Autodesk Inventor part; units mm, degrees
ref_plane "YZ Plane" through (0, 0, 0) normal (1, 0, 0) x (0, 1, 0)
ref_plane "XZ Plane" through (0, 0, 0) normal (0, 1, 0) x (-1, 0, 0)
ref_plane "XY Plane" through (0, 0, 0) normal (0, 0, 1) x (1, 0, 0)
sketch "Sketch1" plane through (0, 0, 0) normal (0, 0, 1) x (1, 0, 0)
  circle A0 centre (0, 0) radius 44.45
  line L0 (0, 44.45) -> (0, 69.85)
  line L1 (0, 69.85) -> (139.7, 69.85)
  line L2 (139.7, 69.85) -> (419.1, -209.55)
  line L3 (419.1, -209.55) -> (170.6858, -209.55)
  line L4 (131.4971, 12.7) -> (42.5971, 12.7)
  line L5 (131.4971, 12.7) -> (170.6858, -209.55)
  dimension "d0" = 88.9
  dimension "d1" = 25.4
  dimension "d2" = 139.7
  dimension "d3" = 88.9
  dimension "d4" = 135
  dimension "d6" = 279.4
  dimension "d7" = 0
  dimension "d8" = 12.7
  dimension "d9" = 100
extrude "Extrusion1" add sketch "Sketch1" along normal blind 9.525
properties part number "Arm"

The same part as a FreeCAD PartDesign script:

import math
import FreeCAD as App
import Part
import Sketcher
Q = App.Units.Quantity

doc = App.newDocument("Part")
params = doc.addObject("Spreadsheet::Sheet", "Params")
for row, (alias, value) in enumerate([
    ("sketch1_height", "1 in"),
    ("sketch1_radius", "1.75 in"),
    ("sketch1_width", "3.5 in"),
    ("sketch1_width2", "5.5 in"),
    ("pad1_length", "0.375 in"),
], start=1):
    params.set(f"A{row}", alias)
    params.set(f"B{row}", "=" + value)
    params.setAlias(f"B{row}", alias)

body = doc.addObject("PartDesign::Body", "Body")

# Sketch on XY plane
sketch1 = body.newObject("Sketcher::SketchObject", "Sketch")
sketch1.AttachmentSupport = (doc.getObject("XY_Plane"), [""])
sketch1.MapMode = "FlatFace"
sketch1.addGeometry(Part.ArcOfCircle(Part.Circle(App.Vector(0, 0, 0), App.Vector(0, 0, 1), 44), math.radians(90), math.radians(377)), False)
sketch1.addGeometry(Part.LineSegment(App.Vector(43, 13, 0), App.Vector(131, 13, 0)), False)
sketch1.addGeometry(Part.LineSegment(App.Vector(131, 13, 0), App.Vector(171, -210, 0)), False)
sketch1.addGeometry(Part.LineSegment(App.Vector(171, -210, 0), App.Vector(419, -210, 0)), False)
sketch1.addGeometry(Part.LineSegment(App.Vector(419, -210, 0), App.Vector(140, 70, 0)), False)
sketch1.addGeometry(Part.LineSegment(App.Vector(140, 70, 0), App.Vector(0, 70, 0)), False)
sketch1.addGeometry(Part.LineSegment(App.Vector(0, 70, 0), App.Vector(0, 44, 0)), False)
sketch1.addConstraint(Sketcher.Constraint("Coincident", 0, 2, 1, 1))
sketch1.addConstraint(Sketcher.Constraint("Coincident", 1, 2, 2, 1))
sketch1.addConstraint(Sketcher.Constraint("Coincident", 2, 2, 3, 1))
sketch1.addConstraint(Sketcher.Constraint("Coincident", 3, 2, 4, 1))
sketch1.addConstraint(Sketcher.Constraint("Coincident", 4, 2, 5, 1))
sketch1.addConstraint(Sketcher.Constraint("Coincident", 5, 2, 6, 1))
sketch1.addConstraint(Sketcher.Constraint("Coincident", 6, 2, 0, 1))
sketch1.addConstraint(Sketcher.Constraint("Horizontal", 1))
sketch1.addConstraint(Sketcher.Constraint("Horizontal", 3))
sketch1.addConstraint(Sketcher.Constraint("Horizontal", 5))
sketch1.addConstraint(Sketcher.Constraint("Vertical", 6))
sketch1.addConstraint(Sketcher.Constraint("Coincident", 0, 3, -1, 1))
sketch1.addConstraint(Sketcher.Constraint("PointOnObject", 5, 2, -2))
sketch1.addConstraint(Sketcher.Constraint("DistanceY", 6, 2, 6, 1, Q("1 in")))
sketch1.addConstraint(Sketcher.Constraint("Radius", 0, Q("1.75 in")))
sketch1.addConstraint(Sketcher.Constraint("DistanceX", 1, 1, 1, 2, Q("3.5 in")))
sketch1.addConstraint(Sketcher.Constraint("DistanceX", 5, 2, 5, 1, Q("5.5 in")))
sketch1.addConstraint(Sketcher.Constraint("Angle", 4, Q("135 deg")))
sketch1.addConstraint(Sketcher.Constraint("DistanceY", 2, 2, 4, 2, Q("11 in")))
sketch1.addConstraint(Sketcher.Constraint("DistanceY", -1, 1, 0, 2, Q("0.5 in")))
sketch1.addConstraint(Sketcher.Constraint("Angle", 2, Q("-80 deg")))
sketch1.setExpression("Constraints[13]", "Params.sketch1_height")
sketch1.setExpression("Constraints[14]", "Params.sketch1_radius")
sketch1.setExpression("Constraints[15]", "Params.sketch1_width")
sketch1.setExpression("Constraints[16]", "Params.sketch1_width2")
pad1 = body.newObject("PartDesign::Pad", "Pad")
pad1.Profile = sketch1
pad1.setExpression("Length", "Params.pad1_length")

doc.recompute()
